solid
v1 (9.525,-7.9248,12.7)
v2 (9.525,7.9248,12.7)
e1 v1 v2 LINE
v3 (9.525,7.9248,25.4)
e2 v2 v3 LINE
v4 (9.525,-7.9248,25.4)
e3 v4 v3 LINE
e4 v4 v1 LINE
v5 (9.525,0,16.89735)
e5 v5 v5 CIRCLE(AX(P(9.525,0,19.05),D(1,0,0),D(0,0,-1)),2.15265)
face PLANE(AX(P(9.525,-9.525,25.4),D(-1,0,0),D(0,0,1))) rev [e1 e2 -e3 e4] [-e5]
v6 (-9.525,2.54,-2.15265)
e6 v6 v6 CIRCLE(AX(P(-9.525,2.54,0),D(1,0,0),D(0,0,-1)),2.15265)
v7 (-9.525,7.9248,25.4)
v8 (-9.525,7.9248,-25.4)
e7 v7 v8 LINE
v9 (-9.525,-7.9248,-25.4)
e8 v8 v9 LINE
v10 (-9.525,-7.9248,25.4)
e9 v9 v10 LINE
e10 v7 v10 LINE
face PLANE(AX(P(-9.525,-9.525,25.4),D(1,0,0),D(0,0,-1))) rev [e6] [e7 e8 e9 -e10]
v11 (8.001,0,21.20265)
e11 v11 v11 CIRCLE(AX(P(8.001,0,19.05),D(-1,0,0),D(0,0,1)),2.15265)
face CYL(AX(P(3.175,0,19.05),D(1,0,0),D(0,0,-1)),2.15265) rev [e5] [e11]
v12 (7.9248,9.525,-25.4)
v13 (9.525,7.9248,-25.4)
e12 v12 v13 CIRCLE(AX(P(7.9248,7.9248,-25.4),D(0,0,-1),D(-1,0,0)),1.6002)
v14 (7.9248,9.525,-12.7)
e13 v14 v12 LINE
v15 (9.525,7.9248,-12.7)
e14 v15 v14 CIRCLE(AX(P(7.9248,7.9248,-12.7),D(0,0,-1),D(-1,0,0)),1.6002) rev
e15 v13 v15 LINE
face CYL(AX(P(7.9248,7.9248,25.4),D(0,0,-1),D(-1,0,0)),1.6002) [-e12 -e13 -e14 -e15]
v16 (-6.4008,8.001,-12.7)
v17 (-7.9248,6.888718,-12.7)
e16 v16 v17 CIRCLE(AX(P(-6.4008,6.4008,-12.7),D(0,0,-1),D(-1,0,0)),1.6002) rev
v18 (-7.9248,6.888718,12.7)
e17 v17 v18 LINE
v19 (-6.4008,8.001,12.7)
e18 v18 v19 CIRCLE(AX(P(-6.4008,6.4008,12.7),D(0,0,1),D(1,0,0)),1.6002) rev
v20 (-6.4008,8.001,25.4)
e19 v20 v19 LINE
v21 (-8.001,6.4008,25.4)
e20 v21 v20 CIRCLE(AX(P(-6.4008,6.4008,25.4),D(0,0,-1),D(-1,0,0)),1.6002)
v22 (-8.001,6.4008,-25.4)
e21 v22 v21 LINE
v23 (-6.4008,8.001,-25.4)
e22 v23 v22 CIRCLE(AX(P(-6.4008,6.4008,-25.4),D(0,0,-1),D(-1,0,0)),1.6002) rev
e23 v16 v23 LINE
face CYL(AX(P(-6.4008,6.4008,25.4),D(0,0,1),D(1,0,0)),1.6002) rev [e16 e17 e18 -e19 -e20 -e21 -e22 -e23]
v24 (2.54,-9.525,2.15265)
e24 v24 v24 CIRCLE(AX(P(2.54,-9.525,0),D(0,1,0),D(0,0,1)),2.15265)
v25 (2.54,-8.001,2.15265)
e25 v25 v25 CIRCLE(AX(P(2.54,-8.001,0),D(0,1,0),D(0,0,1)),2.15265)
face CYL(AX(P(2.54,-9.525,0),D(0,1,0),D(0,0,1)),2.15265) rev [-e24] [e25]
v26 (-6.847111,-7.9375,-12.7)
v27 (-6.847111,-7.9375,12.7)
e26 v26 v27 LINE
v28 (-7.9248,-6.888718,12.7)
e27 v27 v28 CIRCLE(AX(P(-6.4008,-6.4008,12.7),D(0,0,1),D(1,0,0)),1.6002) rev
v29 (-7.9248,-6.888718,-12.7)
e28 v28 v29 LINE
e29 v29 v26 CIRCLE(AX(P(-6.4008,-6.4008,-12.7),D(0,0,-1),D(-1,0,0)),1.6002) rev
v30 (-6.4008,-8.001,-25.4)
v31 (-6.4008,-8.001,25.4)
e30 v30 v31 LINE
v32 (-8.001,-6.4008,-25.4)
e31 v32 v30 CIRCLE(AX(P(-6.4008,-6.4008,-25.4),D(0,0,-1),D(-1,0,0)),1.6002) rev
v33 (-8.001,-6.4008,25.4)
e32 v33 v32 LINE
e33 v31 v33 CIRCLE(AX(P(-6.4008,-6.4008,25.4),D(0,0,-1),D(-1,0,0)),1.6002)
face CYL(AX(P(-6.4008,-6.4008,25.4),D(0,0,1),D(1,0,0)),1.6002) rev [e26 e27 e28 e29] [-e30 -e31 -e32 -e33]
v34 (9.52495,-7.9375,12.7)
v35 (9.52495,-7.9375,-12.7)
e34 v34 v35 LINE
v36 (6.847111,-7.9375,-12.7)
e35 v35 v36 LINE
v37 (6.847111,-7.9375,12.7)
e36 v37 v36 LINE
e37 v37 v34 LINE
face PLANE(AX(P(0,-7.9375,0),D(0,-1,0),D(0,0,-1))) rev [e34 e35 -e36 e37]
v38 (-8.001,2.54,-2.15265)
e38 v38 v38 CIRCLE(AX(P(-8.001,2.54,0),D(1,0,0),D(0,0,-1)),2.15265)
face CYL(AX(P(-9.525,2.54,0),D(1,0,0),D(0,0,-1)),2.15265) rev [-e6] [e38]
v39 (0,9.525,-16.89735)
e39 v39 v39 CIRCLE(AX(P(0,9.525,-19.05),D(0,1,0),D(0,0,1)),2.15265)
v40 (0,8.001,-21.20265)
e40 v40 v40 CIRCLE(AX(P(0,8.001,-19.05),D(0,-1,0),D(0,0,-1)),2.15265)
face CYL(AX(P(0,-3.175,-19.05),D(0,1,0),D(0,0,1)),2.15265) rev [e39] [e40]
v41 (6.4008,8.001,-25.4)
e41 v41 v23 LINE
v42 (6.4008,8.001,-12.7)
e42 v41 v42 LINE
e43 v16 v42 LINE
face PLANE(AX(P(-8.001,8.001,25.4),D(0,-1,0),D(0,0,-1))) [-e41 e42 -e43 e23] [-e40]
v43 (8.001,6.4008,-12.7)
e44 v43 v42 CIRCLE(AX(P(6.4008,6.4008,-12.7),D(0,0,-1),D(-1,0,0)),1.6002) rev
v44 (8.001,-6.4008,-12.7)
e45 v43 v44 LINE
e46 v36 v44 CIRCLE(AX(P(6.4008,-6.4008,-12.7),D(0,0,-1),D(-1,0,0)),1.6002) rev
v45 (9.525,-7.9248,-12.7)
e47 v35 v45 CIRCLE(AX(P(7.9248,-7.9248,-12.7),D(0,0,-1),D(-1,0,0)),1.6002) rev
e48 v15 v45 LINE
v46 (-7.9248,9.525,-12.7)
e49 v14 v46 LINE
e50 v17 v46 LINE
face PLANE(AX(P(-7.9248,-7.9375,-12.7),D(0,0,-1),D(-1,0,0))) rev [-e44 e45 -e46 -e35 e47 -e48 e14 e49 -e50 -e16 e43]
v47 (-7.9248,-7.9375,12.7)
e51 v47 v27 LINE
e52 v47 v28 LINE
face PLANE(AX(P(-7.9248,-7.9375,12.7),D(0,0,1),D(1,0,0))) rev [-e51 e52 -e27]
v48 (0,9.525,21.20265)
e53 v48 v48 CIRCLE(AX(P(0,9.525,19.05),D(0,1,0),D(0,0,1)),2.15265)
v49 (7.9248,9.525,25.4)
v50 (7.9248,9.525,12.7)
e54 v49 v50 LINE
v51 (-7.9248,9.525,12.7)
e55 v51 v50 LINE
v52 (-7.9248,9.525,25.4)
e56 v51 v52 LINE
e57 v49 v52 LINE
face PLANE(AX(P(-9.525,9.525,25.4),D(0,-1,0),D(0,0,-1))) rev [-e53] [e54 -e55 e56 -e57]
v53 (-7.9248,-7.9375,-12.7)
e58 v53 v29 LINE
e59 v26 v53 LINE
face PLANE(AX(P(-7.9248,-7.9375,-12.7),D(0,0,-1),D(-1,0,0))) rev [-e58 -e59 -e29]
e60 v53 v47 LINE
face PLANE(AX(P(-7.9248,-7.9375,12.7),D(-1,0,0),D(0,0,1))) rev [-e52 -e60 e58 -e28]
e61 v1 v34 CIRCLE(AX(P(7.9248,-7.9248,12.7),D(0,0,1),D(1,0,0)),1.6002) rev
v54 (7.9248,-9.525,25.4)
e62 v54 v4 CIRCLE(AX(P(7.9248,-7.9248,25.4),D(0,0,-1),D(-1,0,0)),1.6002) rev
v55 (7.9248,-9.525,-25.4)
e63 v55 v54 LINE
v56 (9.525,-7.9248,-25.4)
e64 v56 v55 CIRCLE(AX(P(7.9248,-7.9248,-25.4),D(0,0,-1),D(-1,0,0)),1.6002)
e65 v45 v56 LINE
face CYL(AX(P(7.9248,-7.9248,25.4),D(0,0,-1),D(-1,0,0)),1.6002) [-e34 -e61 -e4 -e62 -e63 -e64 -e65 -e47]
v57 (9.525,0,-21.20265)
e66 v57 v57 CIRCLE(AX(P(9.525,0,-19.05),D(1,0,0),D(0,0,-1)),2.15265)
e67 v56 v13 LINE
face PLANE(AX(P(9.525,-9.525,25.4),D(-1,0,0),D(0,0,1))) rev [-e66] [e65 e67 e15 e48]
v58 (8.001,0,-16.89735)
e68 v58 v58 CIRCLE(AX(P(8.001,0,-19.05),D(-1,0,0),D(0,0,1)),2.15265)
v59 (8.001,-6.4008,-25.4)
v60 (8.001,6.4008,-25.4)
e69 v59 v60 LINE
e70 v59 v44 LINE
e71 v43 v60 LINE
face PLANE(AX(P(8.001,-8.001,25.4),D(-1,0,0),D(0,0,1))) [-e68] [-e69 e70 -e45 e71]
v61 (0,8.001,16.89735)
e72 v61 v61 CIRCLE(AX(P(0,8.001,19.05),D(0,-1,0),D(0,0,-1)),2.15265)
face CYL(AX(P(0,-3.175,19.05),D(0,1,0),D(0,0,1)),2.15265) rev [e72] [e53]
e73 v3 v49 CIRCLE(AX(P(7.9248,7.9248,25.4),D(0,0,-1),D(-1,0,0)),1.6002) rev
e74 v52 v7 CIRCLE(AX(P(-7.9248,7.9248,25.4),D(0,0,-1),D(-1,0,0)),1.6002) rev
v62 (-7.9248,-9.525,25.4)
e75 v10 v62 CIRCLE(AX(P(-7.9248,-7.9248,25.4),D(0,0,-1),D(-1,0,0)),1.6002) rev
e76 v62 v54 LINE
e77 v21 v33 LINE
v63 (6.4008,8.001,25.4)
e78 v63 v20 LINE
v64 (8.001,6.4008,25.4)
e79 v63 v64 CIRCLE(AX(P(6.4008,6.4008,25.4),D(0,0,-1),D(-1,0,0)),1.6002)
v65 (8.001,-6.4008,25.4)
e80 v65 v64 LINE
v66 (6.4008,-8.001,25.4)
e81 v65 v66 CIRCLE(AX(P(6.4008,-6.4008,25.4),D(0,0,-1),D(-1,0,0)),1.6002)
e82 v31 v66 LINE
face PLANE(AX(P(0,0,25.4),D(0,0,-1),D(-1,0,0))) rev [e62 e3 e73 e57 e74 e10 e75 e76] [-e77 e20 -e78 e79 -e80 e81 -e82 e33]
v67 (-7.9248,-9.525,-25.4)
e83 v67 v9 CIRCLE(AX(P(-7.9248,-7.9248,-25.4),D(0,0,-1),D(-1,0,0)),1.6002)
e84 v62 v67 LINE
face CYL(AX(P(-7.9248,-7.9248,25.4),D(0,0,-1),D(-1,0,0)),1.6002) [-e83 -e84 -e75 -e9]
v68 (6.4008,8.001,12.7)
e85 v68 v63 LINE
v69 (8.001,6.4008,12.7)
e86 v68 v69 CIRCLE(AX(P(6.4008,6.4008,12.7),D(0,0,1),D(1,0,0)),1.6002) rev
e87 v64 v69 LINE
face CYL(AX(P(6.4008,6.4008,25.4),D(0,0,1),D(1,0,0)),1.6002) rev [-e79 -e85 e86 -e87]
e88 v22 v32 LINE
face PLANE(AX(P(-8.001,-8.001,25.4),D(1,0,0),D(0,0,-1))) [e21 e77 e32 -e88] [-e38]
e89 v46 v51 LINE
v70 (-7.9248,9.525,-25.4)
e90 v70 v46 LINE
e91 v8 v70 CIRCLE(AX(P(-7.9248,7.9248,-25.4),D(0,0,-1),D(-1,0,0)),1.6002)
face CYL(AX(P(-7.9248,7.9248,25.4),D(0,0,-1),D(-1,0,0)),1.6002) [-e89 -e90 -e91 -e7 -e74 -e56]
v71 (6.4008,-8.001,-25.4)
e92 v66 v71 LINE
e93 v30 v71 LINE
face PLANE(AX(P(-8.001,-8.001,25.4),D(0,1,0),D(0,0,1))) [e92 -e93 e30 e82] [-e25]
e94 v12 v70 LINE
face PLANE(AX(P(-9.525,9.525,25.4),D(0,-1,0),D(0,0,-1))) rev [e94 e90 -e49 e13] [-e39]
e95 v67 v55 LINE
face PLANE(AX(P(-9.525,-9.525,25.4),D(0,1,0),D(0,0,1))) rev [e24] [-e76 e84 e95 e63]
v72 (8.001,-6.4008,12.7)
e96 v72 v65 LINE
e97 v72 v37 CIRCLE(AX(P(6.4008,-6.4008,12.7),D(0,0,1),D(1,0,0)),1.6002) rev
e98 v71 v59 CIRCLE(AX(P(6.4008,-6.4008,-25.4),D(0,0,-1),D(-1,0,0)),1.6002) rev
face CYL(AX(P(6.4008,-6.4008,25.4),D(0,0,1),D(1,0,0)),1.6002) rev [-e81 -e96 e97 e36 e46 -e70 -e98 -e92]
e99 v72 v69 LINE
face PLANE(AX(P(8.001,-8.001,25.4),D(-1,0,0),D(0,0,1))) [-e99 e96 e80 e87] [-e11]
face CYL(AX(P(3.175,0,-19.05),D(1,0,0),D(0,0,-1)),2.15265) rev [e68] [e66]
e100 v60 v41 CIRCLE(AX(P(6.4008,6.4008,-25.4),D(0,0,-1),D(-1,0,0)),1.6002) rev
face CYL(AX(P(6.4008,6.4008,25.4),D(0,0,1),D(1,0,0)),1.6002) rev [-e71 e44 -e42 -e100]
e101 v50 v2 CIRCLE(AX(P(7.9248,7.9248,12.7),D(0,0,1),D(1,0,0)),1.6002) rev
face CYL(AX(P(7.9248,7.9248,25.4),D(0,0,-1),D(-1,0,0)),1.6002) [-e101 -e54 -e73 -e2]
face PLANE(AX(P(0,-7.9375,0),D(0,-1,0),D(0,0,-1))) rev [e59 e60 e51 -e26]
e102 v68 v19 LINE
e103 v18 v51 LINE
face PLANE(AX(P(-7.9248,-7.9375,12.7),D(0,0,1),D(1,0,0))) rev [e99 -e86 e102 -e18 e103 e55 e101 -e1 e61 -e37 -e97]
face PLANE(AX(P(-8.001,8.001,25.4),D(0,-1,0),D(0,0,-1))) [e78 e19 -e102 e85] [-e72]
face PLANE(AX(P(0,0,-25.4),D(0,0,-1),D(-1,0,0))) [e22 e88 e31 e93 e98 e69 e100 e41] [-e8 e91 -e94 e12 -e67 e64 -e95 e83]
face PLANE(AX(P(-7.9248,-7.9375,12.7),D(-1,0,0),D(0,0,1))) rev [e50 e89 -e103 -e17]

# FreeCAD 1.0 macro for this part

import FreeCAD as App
import Part
import Sketcher

V = App.Vector
Q = App.Units.Quantity


def edges_at(feature, points):
    """Names of the edges that pass closest to the given points."""
    edges = feature.Shape.Edges
    near = lambda p: min(range(len(edges)), key=lambda i: edges[i].distToShape(Part.Vertex(*p))[0])
    return sorted({f"Edge{near(p) + 1}" for p in points})

doc = App.newDocument("Part")
body = doc.addObject("PartDesign::Body", "Body")

# Sketch on XY plane
sketch1 = body.newObject("Sketcher::SketchObject", "Sketch")
sketch1.AttachmentSupport = (doc.getObject("XY_Plane"), [""])
sketch1.MapMode = "FlatFace"
sketch1.addGeometry([
    Part.LineSegment(V(-9.525, 9.525, 0), V(-9.525, -9.525, 0)),  # 0
    Part.LineSegment(V(-9.525, -9.525, 0), V(9.525, -9.525, 0)),  # 1
    Part.LineSegment(V(9.525, -9.525, 0), V(9.525, 9.525, 0)),  # 2
    Part.LineSegment(V(9.525, 9.525, 0), V(-9.525, 9.525, 0)),  # 3
    Part.LineSegment(V(8.001, -8.001, 0), V(-8.001, -8.001, 0)),  # 4
    Part.LineSegment(V(-8.001, -8.001, 0), V(-8.001, 8.001, 0)),  # 5
    Part.LineSegment(V(-8.001, 8.001, 0), V(8.001, 8.001, 0)),  # 6
    Part.LineSegment(V(8.001, 8.001, 0), V(8.001, -8.001, 0)),  # 7
], False)
sketch1.addConstraint([
    Sketcher.Constraint("Coincident", 0, 2, 1, 1),
    Sketcher.Constraint("Coincident", 1, 2, 2, 1),
    Sketcher.Constraint("Coincident", 2, 2, 3, 1),
    Sketcher.Constraint("Coincident", 3, 2, 0, 1),
    Sketcher.Constraint("Coincident", 4, 2, 5, 1),
    Sketcher.Constraint("Coincident", 5, 2, 6, 1),
    Sketcher.Constraint("Coincident", 6, 2, 7, 1),
    Sketcher.Constraint("Coincident", 7, 2, 4, 1),
    Sketcher.Constraint("Vertical", 0),
    Sketcher.Constraint("Horizontal", 1),
    Sketcher.Constraint("Vertical", 2),
    Sketcher.Constraint("Horizontal", 3),
    Sketcher.Constraint("Horizontal", 4),
    Sketcher.Constraint("Vertical", 5),
    Sketcher.Constraint("Horizontal", 6),
    Sketcher.Constraint("Vertical", 7),
    Sketcher.Constraint("Symmetric", 0, 2, 2, 2, -1, 1),
    Sketcher.Constraint("Symmetric", 4, 2, 6, 2, -1, 1),
    Sketcher.Constraint("Equal", 3, 0),
    Sketcher.Constraint("Equal", 6, 5),
    Sketcher.Constraint("DistanceX", 1, 1, 1, 2, Q("0.75 in")),
    Sketcher.Constraint("DistanceX", 4, 2, 4, 1, Q("0.63 in")),
])
pad1 = body.newObject("PartDesign::Pad", "Pad")
pad1.Profile = sketch1
pad1.Type = "TwoLengths"
pad1.Length = Q("1 in")
pad1.Length2 = Q("1 in")
doc.recompute()

fillet = body.newObject("PartDesign::Fillet", "Fillet")
fillet.Base = (pad1, edges_at(pad1, [
    (8.001, -8.001, 0),
    (8.001, 8.001, 0),
    (-8.001, 8.001, 0),
    (-8.001, -8.001, 0),
    (9.525, -9.525, 0),
    (-9.525, -9.525, 0),
    (-9.525, 9.525, 0),
    (9.525, 9.525, 0),
]))
fillet.Radius = Q("0.063 in")

# Sketch on XZ plane
sketch2 = body.newObject("Sketcher::SketchObject", "Sketch001")
sketch2.AttachmentSupport = (doc.getObject("XZ_Plane"), [""])
sketch2.MapMode = "FlatFace"
sketch2.AttachmentOffset = App.Placement(V(0, 0, -0.375 * 25.4), App.Rotation())
sketch2.addGeometry([
    Part.LineSegment(V(-7.9248, -12.7, 0), V(-7.9248, 12.7, 0)),
    Part.LineSegment(V(-7.9248, 12.7, 0), V(11.860149, 12.7, 0)),
    Part.LineSegment(V(11.860149, 12.7, 0), V(11.860149, -12.7, 0)),
    Part.LineSegment(V(11.860149, -12.7, 0), V(-7.9248, -12.7, 0)),
], False)
sketch2.addConstraint([
    Sketcher.Constraint("Coincident", 0, 2, 1, 1),
    Sketcher.Constraint("Coincident", 1, 2, 2, 1),
    Sketcher.Constraint("Coincident", 2, 2, 3, 1),
    Sketcher.Constraint("Coincident", 3, 2, 0, 1),
    Sketcher.Constraint("Vertical", 0),
    Sketcher.Constraint("Horizontal", 1),
    Sketcher.Constraint("Vertical", 2),
    Sketcher.Constraint("Horizontal", 3),
    Sketcher.Constraint("DistanceY", 0, 1, 0, 2, Q("1 in")),
    Sketcher.Constraint("DistanceY", -1, 1, 0, 2, Q("0.5 in")),
    Sketcher.Constraint("DistanceX", 0, 2, -1, 1, Q("0.312 in")),
    Sketcher.Constraint("DistanceX", 1, 1, 1, 2, Q("19.784949 mm")),
])
pocket1 = body.newObject("PartDesign::Pocket", "Pocket")
pocket1.Profile = sketch2
pocket1.Length = Q("0.6875 in")
pocket1.Reversed = True

# Sketch on XZ plane
sketch3 = body.newObject("Sketcher::SketchObject", "Sketch002")
sketch3.AttachmentSupport = (doc.getObject("XZ_Plane"), [""])
sketch3.MapMode = "FlatFace"
sketch3.AttachmentOffset = App.Placement(V(0, 0, -0.375 * 25.4), App.Rotation())
sketch3.addGeometry([
    Part.Circle(V(0, -19.05, 0), V(0, 0, 1), 2.15265),
    Part.Circle(V(2.54, 0, 0), V(0, 0, 1), 2.15265),
    Part.Circle(V(0, 19.05, 0), V(0, 0, 1), 2.15265),
], False)
sketch3.addConstraint([
    Sketcher.Constraint("Equal", 0, 1),
    Sketcher.Constraint("Equal", 1, 2),
    Sketcher.Constraint("Symmetric", 0, 3, 2, 3, -1, 1),
    Sketcher.Constraint("PointOnObject", 0, 3, -2),
    Sketcher.Constraint("PointOnObject", 1, 3, -1),
    Sketcher.Constraint("Diameter", 0, Q("0.1695 in")),
    Sketcher.Constraint("DistanceX", -1, 1, 1, 3, Q("0.1 in")),
    Sketcher.Constraint("DistanceY", 0, 3, 2, 3, Q("1.5 in")),
])
pocket2 = body.newObject("PartDesign::Pocket", "Pocket001")
pocket2.Profile = sketch3
pocket2.Length = Q("0.5 in")
pocket2.Reversed = True

# Sketch on XZ plane
sketch4 = body.newObject("Sketcher::SketchObject", "Sketch003")
sketch4.AttachmentSupport = (doc.getObject("XZ_Plane"), [""])
sketch4.MapMode = "FlatFace"
sketch4.AttachmentOffset = App.Placement(V(0, 0, 0.315 * 25.4), App.Rotation())
sketch4.addGeometry(Part.Circle(V(2.54, 0, 0), V(0, 0, 1), 2.15265), False)
sketch4.addConstraint([
    Sketcher.Constraint("PointOnObject", 0, 3, -1),
    Sketcher.Constraint("Diameter", 0, Q("0.1695 in")),
    Sketcher.Constraint("DistanceX", -1, 1, 0, 3, Q("0.1 in")),
])
pocket3 = body.newObject("PartDesign::Pocket", "Pocket002")
pocket3.Profile = sketch4
pocket3.Type = "ThroughAll"
pocket3.Reversed = True

# Sketch on YZ plane
sketch5 = body.newObject("Sketcher::SketchObject", "Sketch004")
sketch5.AttachmentSupport = (doc.getObject("YZ_Plane"), [""])
sketch5.MapMode = "FlatFace"
sketch5.AttachmentOffset = App.Placement(V(0, 0, 0.375 * 25.4), App.Rotation())
sketch5.addGeometry([
    Part.Circle(V(0, 19.05, 0), V(0, 0, 1), 2.15265),
    Part.Circle(V(0, -19.05, 0), V(0, 0, 1), 2.15265),
], False)
sketch5.addConstraint([
    Sketcher.Constraint("Equal", 0, 1),
    Sketcher.Constraint("Symmetric", 0, 3, 1, 3, -1, 1),
    Sketcher.Constraint("PointOnObject", 0, 3, -2),
    Sketcher.Constraint("Diameter", 0, Q("0.1695 in")),
    Sketcher.Constraint("DistanceY", 1, 3, 0, 3, Q("1.5 in")),
])
pocket4 = body.newObject("PartDesign::Pocket", "Pocket003")
pocket4.Profile = sketch5
pocket4.Length = Q("0.25 in")

# Sketch on YZ plane
sketch6 = body.newObject("Sketcher::SketchObject", "Sketch005")
sketch6.AttachmentSupport = (doc.getObject("YZ_Plane"), [""])
sketch6.MapMode = "FlatFace"
sketch6.AttachmentOffset = App.Placement(V(0, 0, 0.375 * 25.4), App.Rotation())
sketch6.addGeometry(Part.Circle(V(2.54, 0, 0), V(0, 0, 1), 2.15265), False)
sketch6.addConstraint([
    Sketcher.Constraint("PointOnObject", 0, 3, -1),
    Sketcher.Constraint("Diameter", 0, Q("0.1695 in")),
    Sketcher.Constraint("DistanceX", -1, 1, 0, 3, Q("0.1 in")),
])
pocket5 = body.newObject("PartDesign::Pocket", "Pocket004")
pocket5.Profile = sketch6
pocket5.Type = "ThroughAll"

doc.recompute()
